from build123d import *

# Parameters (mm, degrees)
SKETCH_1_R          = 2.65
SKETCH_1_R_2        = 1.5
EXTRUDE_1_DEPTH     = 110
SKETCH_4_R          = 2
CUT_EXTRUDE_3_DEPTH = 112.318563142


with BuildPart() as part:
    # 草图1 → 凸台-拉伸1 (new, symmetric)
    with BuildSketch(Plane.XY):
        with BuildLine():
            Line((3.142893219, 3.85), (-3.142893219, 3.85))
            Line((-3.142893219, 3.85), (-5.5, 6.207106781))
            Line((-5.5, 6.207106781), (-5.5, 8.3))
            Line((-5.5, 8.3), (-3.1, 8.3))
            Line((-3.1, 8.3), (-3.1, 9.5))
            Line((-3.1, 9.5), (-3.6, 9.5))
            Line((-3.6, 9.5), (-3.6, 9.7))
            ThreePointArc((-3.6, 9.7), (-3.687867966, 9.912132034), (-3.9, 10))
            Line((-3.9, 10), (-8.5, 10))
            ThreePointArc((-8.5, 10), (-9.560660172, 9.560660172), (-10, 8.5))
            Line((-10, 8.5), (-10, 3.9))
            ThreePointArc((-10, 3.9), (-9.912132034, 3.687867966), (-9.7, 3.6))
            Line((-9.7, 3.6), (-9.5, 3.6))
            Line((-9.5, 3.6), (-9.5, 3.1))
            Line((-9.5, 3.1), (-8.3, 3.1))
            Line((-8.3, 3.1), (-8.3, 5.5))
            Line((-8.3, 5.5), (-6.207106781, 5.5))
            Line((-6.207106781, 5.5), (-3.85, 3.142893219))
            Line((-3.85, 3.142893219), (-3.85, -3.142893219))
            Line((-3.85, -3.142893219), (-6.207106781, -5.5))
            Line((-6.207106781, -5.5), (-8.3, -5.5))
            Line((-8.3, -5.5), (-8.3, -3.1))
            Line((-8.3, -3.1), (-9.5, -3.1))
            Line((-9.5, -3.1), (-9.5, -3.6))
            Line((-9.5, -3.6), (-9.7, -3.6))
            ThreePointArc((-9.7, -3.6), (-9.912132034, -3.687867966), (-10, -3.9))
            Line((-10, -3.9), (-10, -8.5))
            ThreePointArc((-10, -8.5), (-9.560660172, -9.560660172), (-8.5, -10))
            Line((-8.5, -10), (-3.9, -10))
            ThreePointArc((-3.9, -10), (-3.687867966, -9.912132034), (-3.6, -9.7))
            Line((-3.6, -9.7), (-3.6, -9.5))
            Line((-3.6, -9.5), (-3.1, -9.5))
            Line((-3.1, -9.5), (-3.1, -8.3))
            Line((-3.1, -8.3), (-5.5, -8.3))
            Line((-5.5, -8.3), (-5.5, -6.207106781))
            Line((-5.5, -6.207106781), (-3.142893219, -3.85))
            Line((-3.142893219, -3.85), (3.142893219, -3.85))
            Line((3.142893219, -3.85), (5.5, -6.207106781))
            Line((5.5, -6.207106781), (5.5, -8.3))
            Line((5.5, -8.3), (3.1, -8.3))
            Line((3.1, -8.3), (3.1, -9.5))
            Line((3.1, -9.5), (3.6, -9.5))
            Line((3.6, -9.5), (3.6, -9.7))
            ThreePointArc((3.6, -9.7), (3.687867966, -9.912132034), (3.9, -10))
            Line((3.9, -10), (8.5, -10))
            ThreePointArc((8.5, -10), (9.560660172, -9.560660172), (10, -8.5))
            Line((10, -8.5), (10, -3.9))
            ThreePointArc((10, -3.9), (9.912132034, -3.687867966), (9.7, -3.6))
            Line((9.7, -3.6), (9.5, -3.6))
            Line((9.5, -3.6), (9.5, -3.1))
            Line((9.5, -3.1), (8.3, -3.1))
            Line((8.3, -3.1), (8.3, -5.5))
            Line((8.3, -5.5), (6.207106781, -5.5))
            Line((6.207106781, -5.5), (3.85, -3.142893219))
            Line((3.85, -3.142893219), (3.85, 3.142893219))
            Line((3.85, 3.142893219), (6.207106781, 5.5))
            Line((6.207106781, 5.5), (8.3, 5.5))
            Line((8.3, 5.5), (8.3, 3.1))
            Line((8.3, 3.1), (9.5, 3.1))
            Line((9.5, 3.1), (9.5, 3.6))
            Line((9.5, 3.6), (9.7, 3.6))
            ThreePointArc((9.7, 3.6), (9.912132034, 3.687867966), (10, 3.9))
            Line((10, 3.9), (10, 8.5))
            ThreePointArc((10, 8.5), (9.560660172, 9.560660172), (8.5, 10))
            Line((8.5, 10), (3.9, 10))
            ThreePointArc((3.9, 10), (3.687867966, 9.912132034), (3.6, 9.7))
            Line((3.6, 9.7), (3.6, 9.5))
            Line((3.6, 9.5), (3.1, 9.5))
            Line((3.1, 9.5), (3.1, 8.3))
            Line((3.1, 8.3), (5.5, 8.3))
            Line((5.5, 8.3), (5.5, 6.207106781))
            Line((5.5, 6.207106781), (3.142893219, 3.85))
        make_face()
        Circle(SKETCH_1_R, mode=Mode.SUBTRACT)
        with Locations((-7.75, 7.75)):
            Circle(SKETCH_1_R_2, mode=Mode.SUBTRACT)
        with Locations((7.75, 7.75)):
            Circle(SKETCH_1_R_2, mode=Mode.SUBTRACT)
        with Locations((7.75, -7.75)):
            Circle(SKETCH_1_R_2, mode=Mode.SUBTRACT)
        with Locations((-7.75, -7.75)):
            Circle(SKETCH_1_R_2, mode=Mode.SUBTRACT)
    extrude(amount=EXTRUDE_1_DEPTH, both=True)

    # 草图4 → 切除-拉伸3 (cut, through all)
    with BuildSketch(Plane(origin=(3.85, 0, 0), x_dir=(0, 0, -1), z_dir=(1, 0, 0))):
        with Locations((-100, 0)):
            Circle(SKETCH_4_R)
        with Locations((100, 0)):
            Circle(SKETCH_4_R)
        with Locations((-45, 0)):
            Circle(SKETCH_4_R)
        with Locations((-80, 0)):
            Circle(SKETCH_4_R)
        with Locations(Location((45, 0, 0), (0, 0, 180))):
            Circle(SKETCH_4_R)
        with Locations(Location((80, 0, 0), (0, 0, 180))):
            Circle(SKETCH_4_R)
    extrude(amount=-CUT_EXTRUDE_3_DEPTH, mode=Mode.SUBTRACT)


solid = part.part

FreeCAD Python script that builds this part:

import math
import FreeCAD as App
import Part
import Sketcher

V = App.Vector
Q = App.Units.Quantity

doc = App.newDocument("Part")
body = doc.addObject("PartDesign::Body", "Body")

# Sketch on XY plane
sketch1 = body.newObject("Sketcher::SketchObject", "Sketch")
sketch1.AttachmentSupport = (doc.getObject("XY_Plane"), [""])
sketch1.MapMode = "FlatFace"
sketch1.addGeometry(Part.LineSegment(V(3.14, 3.85, 0), V(-3.14, 3.85, 0)), False)
sketch1.addGeometry(Part.LineSegment(V(-3.14, 3.85, 0), V(-5.5, 6.21, 0)), False)
sketch1.addGeometry(Part.LineSegment(V(-5.5, 6.21, 0), V(-5.5, 8.3, 0)), False)
sketch1.addGeometry(Part.LineSegment(V(-5.5, 8.3, 0), V(-3.1, 8.3, 0)), False)
sketch1.addGeometry(Part.LineSegment(V(-3.1, 8.3, 0), V(-3.1, 9.5, 0)), False)
sketch1.addGeometry(Part.LineSegment(V(-3.1, 9.5, 0), V(-3.6, 9.5, 0)), False)
sketch1.addGeometry(Part.LineSegment(V(-3.6, 9.5, 0), V(-3.6, 9.7, 0)), False)
sketch1.addGeometry(Part.ArcOfCircle(Part.Circle(V(-3.9, 9.7, 0), V(0, 0, 1), 0.3), math.radians(0), math.radians(90)), False)
sketch1.addGeometry(Part.LineSegment(V(-3.9, 10, 0), V(-8.5, 10, 0)), False)
sketch1.addGeometry(Part.ArcOfCircle(Part.Circle(V(-8.5, 8.5, 0), V(0, 0, 1), 1.5), math.radians(90), math.radians(180)), False)
sketch1.addGeometry(Part.LineSegment(V(-10, 8.5, 0), V(-10, 3.9, 0)), False)
sketch1.addGeometry(Part.ArcOfCircle(Part.Circle(V(-9.7, 3.9, 0), V(0, 0, 1), 0.3), math.radians(-180), math.radians(-90)), False)
sketch1.addGeometry(Part.LineSegment(V(-9.7, 3.6, 0), V(-9.5, 3.6, 0)), False)
sketch1.addGeometry(Part.LineSegment(V(-9.5, 3.6, 0), V(-9.5, 3.1, 0)), False)
sketch1.addGeometry(Part.LineSegment(V(-9.5, 3.1, 0), V(-8.3, 3.1, 0)), False)
sketch1.addGeometry(Part.LineSegment(V(-8.3, 3.1, 0), V(-8.3, 5.5, 0)), False)
sketch1.addGeometry(Part.LineSegment(V(-8.3, 5.5, 0), V(-6.21, 5.5, 0)), False)
sketch1.addGeometry(Part.LineSegment(V(-6.21, 5.5, 0), V(-3.85, 3.14, 0)), False)
sketch1.addGeometry(Part.LineSegment(V(-3.85, 3.14, 0), V(-3.85, -3.14, 0)), False)
sketch1.addGeometry(Part.LineSegment(V(-3.85, -3.14, 0), V(-6.21, -5.5, 0)), False)
sketch1.addGeometry(Part.LineSegment(V(-6.21, -5.5, 0), V(-8.3, -5.5, 0)), False)
sketch1.addGeometry(Part.LineSegment(V(-8.3, -5.5, 0), V(-8.3, -3.1, 0)), False)
sketch1.addGeometry(Part.LineSegment(V(-8.3, -3.1, 0), V(-9.5, -3.1, 0)), False)
sketch1.addGeometry(Part.LineSegment(V(-9.5, -3.1, 0), V(-9.5, -3.6, 0)), False)
sketch1.addGeometry(Part.LineSegment(V(-9.5, -3.6, 0), V(-9.7, -3.6, 0)), False)
sketch1.addGeometry(Part.ArcOfCircle(Part.Circle(V(-9.7, -3.9, 0), V(0, 0, 1), 0.3), math.radians(90), math.radians(180)), False)
sketch1.addGeometry(Part.LineSegment(V(-10, -3.9, 0), V(-10, -8.5, 0)), False)
sketch1.addGeometry(Part.ArcOfCircle(Part.Circle(V(-8.5, -8.5, 0), V(0, 0, 1), 1.5), math.radians(180), math.radians(270)), False)
sketch1.addGeometry(Part.LineSegment(V(-8.5, -10, 0), V(-3.9, -10, 0)), False)
sketch1.addGeometry(Part.ArcOfCircle(Part.Circle(V(-3.9, -9.7, 0), V(0, 0, 1), 0.3), math.radians(-90), math.radians(0)), False)
sketch1.addGeometry(Part.LineSegment(V(-3.6, -9.7, 0), V(-3.6, -9.5, 0)), False)
sketch1.addGeometry(Part.LineSegment(V(-3.6, -9.5, 0), V(-3.1, -9.5, 0)), False)
sketch1.addGeometry(Part.LineSegment(V(-3.1, -9.5, 0), V(-3.1, -8.3, 0)), False)
sketch1.addGeometry(Part.LineSegment(V(-3.1, -8.3, 0), V(-5.5, -8.3, 0)), False)
sketch1.addGeometry(Part.LineSegment(V(-5.5, -8.3, 0), V(-5.5, -6.21, 0)), False)
sketch1.addGeometry(Part.LineSegment(V(-5.5, -6.21, 0), V(-3.14, -3.85, 0)), False)
sketch1.addGeometry(Part.LineSegment(V(-3.14, -3.85, 0), V(3.14, -3.85, 0)), False)
sketch1.addGeometry(Part.LineSegment(V(3.14, -3.85, 0), V(5.5, -6.21, 0)), False)
sketch1.addGeometry(Part.LineSegment(V(5.5, -6.21, 0), V(5.5, -8.3, 0)), False)
sketch1.addGeometry(Part.LineSegment(V(5.5, -8.3, 0), V(3.1, -8.3, 0)), False)
sketch1.addGeometry(Part.LineSegment(V(3.1, -8.3, 0), V(3.1, -9.5, 0)), False)
sketch1.addGeometry(Part.LineSegment(V(3.1, -9.5, 0), V(3.6, -9.5, 0)), False)
sketch1.addGeometry(Part.LineSegment(V(3.6, -9.5, 0), V(3.6, -9.7, 0)), False)
sketch1.addGeometry(Part.ArcOfCircle(Part.Circle(V(3.9, -9.7, 0), V(0, 0, 1), 0.3), math.radians(-180), math.radians(-90)), False)
sketch1.addGeometry(Part.LineSegment(V(3.9, -10, 0), V(8.5, -10, 0)), False)
sketch1.addGeometry(Part.ArcOfCircle(Part.Circle(V(8.5, -8.5, 0), V(0, 0, 1), 1.5), math.radians(-90), math.radians(0)), False)
sketch1.addGeometry(Part.LineSegment(V(10, -8.5, 0), V(10, -3.9, 0)), False)
sketch1.addGeometry(Part.ArcOfCircle(Part.Circle(V(9.7, -3.9, 0), V(0, 0, 1), 0.3), math.radians(0), math.radians(90)), False)
sketch1.addGeometry(Part.LineSegment(V(9.7, -3.6, 0), V(9.5, -3.6, 0)), False)
sketch1.addGeometry(Part.LineSegment(V(9.5, -3.6, 0), V(9.5, -3.1, 0)), False)
sketch1.addGeometry(Part.LineSegment(V(9.5, -3.1, 0), V(8.3, -3.1, 0)), False)
sketch1.addGeometry(Part.LineSegment(V(8.3, -3.1, 0), V(8.3, -5.5, 0)), False)
sketch1.addGeometry(Part.LineSegment(V(8.3, -5.5, 0), V(6.21, -5.5, 0)), False)
sketch1.addGeometry(Part.LineSegment(V(6.21, -5.5, 0), V(3.85, -3.14, 0)), False)
sketch1.addGeometry(Part.LineSegment(V(3.85, -3.14, 0), V(3.85, 3.14, 0)), False)
sketch1.addGeometry(Part.LineSegment(V(3.85, 3.14, 0), V(6.21, 5.5, 0)), False)
sketch1.addGeometry(Part.LineSegment(V(6.21, 5.5, 0), V(8.3, 5.5, 0)), False)
sketch1.addGeometry(Part.LineSegment(V(8.3, 5.5, 0), V(8.3, 3.1, 0)), False)
sketch1.addGeometry(Part.LineSegment(V(8.3, 3.1, 0), V(9.5, 3.1, 0)), False)
sketch1.addGeometry(Part.LineSegment(V(9.5, 3.1, 0), V(9.5, 3.6, 0)), False)
sketch1.addGeometry(Part.LineSegment(V(9.5, 3.6, 0), V(9.7, 3.6, 0)), False)
sketch1.addGeometry(Part.ArcOfCircle(Part.Circle(V(9.7, 3.9, 0), V(0, 0, 1), 0.3), math.radians(-90), math.radians(0)), False)
sketch1.addGeometry(Part.LineSegment(V(10, 3.9, 0), V(10, 8.5, 0)), False)
sketch1.addGeometry(Part.ArcOfCircle(Part.Circle(V(8.5, 8.5, 0), V(0, 0, 1), 1.5), math.radians(0), math.radians(90)), False)
sketch1.addGeometry(Part.LineSegment(V(8.5, 10, 0), V(3.9, 10, 0)), False)
sketch1.addGeometry(Part.ArcOfCircle(Part.Circle(V(3.9, 9.7, 0), V(0, 0, 1), 0.3), math.radians(90), math.radians(180)), False)
sketch1.addGeometry(Part.LineSegment(V(3.6, 9.7, 0), V(3.6, 9.5, 0)), False)
sketch1.addGeometry(Part.LineSegment(V(3.6, 9.5, 0), V(3.1, 9.5, 0)), False)
sketch1.addGeometry(Part.LineSegment(V(3.1, 9.5, 0), V(3.1, 8.3, 0)), False)
sketch1.addGeometry(Part.LineSegment(V(3.1, 8.3, 0), V(5.5, 8.3, 0)), False)
sketch1.addGeometry(Part.LineSegment(V(5.5, 8.3, 0), V(5.5, 6.21, 0)), False)
sketch1.addGeometry(Part.LineSegment(V(5.5, 6.21, 0), V(3.14, 3.85, 0)), False)
sketch1.addGeometry(Part.Circle(V(-7.75, -7.75, 0), V(0, 0, 1), 1.5), False)
sketch1.addGeometry(Part.Circle(V(7.75, -7.75, 0), V(0, 0, 1), 1.5), False)
sketch1.addGeometry(Part.Circle(V(-7.75, 7.75, 0), V(0, 0, 1), 1.5), False)
sketch1.addGeometry(Part.Circle(V(0, 0, 0), V(0, 0, 1), 2.65), False)
sketch1.addGeometry(Part.Circle(V(7.75, 7.75, 0), V(0, 0, 1), 1.5), False)
sketch1.addConstraint(Sketcher.Constraint("Coincident", 0, 2, 1, 1))
sketch1.addConstraint(Sketcher.Constraint("Coincident", 1, 2, 2, 1))
sketch1.addConstraint(Sketcher.Constraint("Coincident", 2, 2, 3, 1))
sketch1.addConstraint(Sketcher.Constraint("Coincident", 3, 2, 4, 1))
sketch1.addConstraint(Sketcher.Constraint("Coincident", 4, 2, 5, 1))
sketch1.addConstraint(Sketcher.Constraint("Coincident", 5, 2, 6, 1))
sketch1.addConstraint(Sketcher.Constraint("Tangent", 6, 2, 7, 1))
sketch1.addConstraint(Sketcher.Constraint("Tangent", 7, 2, 8, 1))
sketch1.addConstraint(Sketcher.Constraint("Tangent", 8, 2, 9, 1))
sketch1.addConstraint(Sketcher.Constraint("Tangent", 9, 2, 10, 1))
sketch1.addConstraint(Sketcher.Constraint("Tangent", 10, 2, 11, 1))
sketch1.addConstraint(Sketcher.Constraint("Tangent", 11, 2, 12, 1))
sketch1.addConstraint(Sketcher.Constraint("Coincident", 12, 2, 13, 1))
sketch1.addConstraint(Sketcher.Constraint("Coincident", 13, 2, 14, 1))
sketch1.addConstraint(Sketcher.Constraint("Coincident", 14, 2, 15, 1))
sketch1.addConstraint(Sketcher.Constraint("Coincident", 15, 2, 16, 1))
sketch1.addConstraint(Sketcher.Constraint("Coincident", 16, 2, 17, 1))
sketch1.addConstraint(Sketcher.Constraint("Coincident", 17, 2, 18, 1))
sketch1.addConstraint(Sketcher.Constraint("Coincident", 18, 2, 19, 1))
sketch1.addConstraint(Sketcher.Constraint("Coincident", 19, 2, 20, 1))
sketch1.addConstraint(Sketcher.Constraint("Coincident", 20, 2, 21, 1))
sketch1.addConstraint(Sketcher.Constraint("Coincident", 21, 2, 22, 1))
sketch1.addConstraint(Sketcher.Constraint("Coincident", 22, 2, 23, 1))
sketch1.addConstraint(Sketcher.Constraint("Coincident", 23, 2, 24, 1))
sketch1.addConstraint(Sketcher.Constraint("Tangent", 24, 2, 25, 1))
sketch1.addConstraint(Sketcher.Constraint("Tangent", 25, 2, 26, 1))
sketch1.addConstraint(Sketcher.Constraint("Tangent", 26, 2, 27, 1))
sketch1.addConstraint(Sketcher.Constraint("Tangent", 27, 2, 28, 1))
sketch1.addConstraint(Sketcher.Constraint("Tangent", 28, 2, 29, 1))
sketch1.addConstraint(Sketcher.Constraint("Tangent", 29, 2, 30, 1))
sketch1.addConstraint(Sketcher.Constraint("Coincident", 30, 2, 31, 1))
sketch1.addConstraint(Sketcher.Constraint("Coincident", 31, 2, 32, 1))
sketch1.addConstraint(Sketcher.Constraint("Coincident", 32, 2, 33, 1))
sketch1.addConstraint(Sketcher.Constraint("Coincident", 33, 2, 34, 1))
sketch1.addConstraint(Sketcher.Constraint("Coincident", 34, 2, 35, 1))
sketch1.addConstraint(Sketcher.Constraint("Coincident", 35, 2, 36, 1))
sketch1.addConstraint(Sketcher.Constraint("Coincident", 36, 2, 37, 1))
sketch1.addConstraint(Sketcher.Constraint("Coincident", 37, 2, 38, 1))
sketch1.addConstraint(Sketcher.Constraint("Coincident", 38, 2, 39, 1))
sketch1.addConstraint(Sketcher.Constraint("Coincident", 39, 2, 40, 1))
sketch1.addConstraint(Sketcher.Constraint("Coincident", 40, 2, 41, 1))
sketch1.addConstraint(Sketcher.Constraint("Coincident", 41, 2, 42, 1))
sketch1.addConstraint(Sketcher.Constraint("Tangent", 42, 2, 43, 1))
sketch1.addConstraint(Sketcher.Constraint("Tangent", 43, 2, 44, 1))
sketch1.addConstraint(Sketcher.Constraint("Tangent", 44, 2, 45, 1))
sketch1.addConstraint(Sketcher.Constraint("Tangent", 45, 2, 46, 1))
sketch1.addConstraint(Sketcher.Constraint("Tangent", 46, 2, 47, 1))
sketch1.addConstraint(Sketcher.Constraint("Tangent", 47, 2, 48, 1))
sketch1.addConstraint(Sketcher.Constraint("Coincident", 48, 2, 49, 1))
sketch1.addConstraint(Sketcher.Constraint("Coincident", 49, 2, 50, 1))
sketch1.addConstraint(Sketcher.Constraint("Coincident", 50, 2, 51, 1))
sketch1.addConstraint(Sketcher.Constraint("Coincident", 51, 2, 52, 1))
sketch1.addConstraint(Sketcher.Constraint("Coincident", 52, 2, 53, 1))
sketch1.addConstraint(Sketcher.Constraint("Coincident", 53, 2, 54, 1))
sketch1.addConstraint(Sketcher.Constraint("Coincident", 54, 2, 55, 1))
sketch1.addConstraint(Sketcher.Constraint("Coincident", 55, 2, 56, 1))
sketch1.addConstraint(Sketcher.Constraint("Coincident", 56, 2, 57, 1))
sketch1.addConstraint(Sketcher.Constraint("Coincident", 57, 2, 58, 1))
sketch1.addConstraint(Sketcher.Constraint("Coincident", 58, 2, 59, 1))
sketch1.addConstraint(Sketcher.Constraint("Coincident", 59, 2, 60, 1))
sketch1.addConstraint(Sketcher.Constraint("Tangent", 60, 2, 61, 1))
sketch1.addConstraint(Sketcher.Constraint("Tangent", 61, 2, 62, 1))
sketch1.addConstraint(Sketcher.Constraint("Tangent", 62, 2, 63, 1))
sketch1.addConstraint(Sketcher.Constraint("Tangent", 63, 2, 64, 1))
sketch1.addConstraint(Sketcher.Constraint("Tangent", 64, 2, 65, 1))
sketch1.addConstraint(Sketcher.Constraint("Tangent", 65, 2, 66, 1))
sketch1.addConstraint(Sketcher.Constraint("Coincident", 66, 2, 67, 1))
sketch1.addConstraint(Sketcher.Constraint("Coincident", 67, 2, 68, 1))
sketch1.addConstraint(Sketcher.Constraint("Coincident", 68, 2, 69, 1))
sketch1.addConstraint(Sketcher.Constraint("Coincident", 69, 2, 70, 1))
sketch1.addConstraint(Sketcher.Constraint("Coincident", 70, 2, 71, 1))
sketch1.addConstraint(Sketcher.Constraint("Coincident", 71, 2, 0, 1))
sketch1.addConstraint(Sketcher.Constraint("Horizontal", 0))
sketch1.addConstraint(Sketcher.Constraint("Vertical", 2))
sketch1.addConstraint(Sketcher.Constraint("Horizontal", 3))
sketch1.addConstraint(Sketcher.Constraint("Vertical", 4))
sketch1.addConstraint(Sketcher.Constraint("Horizontal", 5))
sketch1.addConstraint(Sketcher.Constraint("Vertical", 6))
sketch1.addConstraint(Sketcher.Constraint("Horizontal", 8))
sketch1.addConstraint(Sketcher.Constraint("Vertical", 10))
sketch1.addConstraint(Sketcher.Constraint("Horizontal", 12))
sketch1.addConstraint(Sketcher.Constraint("Vertical", 13))
sketch1.addConstraint(Sketcher.Constraint("Horizontal", 14))
sketch1.addConstraint(Sketcher.Constraint("Vertical", 15))
sketch1.addConstraint(Sketcher.Constraint("Horizontal", 16))
sketch1.addConstraint(Sketcher.Constraint("Vertical", 18))
sketch1.addConstraint(Sketcher.Constraint("Horizontal", 20))
sketch1.addConstraint(Sketcher.Constraint("Vertical", 21))
sketch1.addConstraint(Sketcher.Constraint("Horizontal", 22))
sketch1.addConstraint(Sketcher.Constraint("Vertical", 23))
sketch1.addConstraint(Sketcher.Constraint("Horizontal", 24))
sketch1.addConstraint(Sketcher.Constraint("Vertical", 26))
sketch1.addConstraint(Sketcher.Constraint("Horizontal", 28))
sketch1.addConstraint(Sketcher.Constraint("Vertical", 30))
sketch1.addConstraint(Sketcher.Constraint("Horizontal", 31))
sketch1.addConstraint(Sketcher.Constraint("Vertical", 32))
sketch1.addConstraint(Sketcher.Constraint("Horizontal", 33))
sketch1.addConstraint(Sketcher.Constraint("Vertical", 34))
sketch1.addConstraint(Sketcher.Constraint("Horizontal", 36))
sketch1.addConstraint(Sketcher.Constraint("Vertical", 38))
sketch1.addConstraint(Sketcher.Constraint("Horizontal", 39))
sketch1.addConstraint(Sketcher.Constraint("Vertical", 40))
sketch1.addConstraint(Sketcher.Constraint("Horizontal", 41))
sketch1.addConstraint(Sketcher.Constraint("Vertical", 42))
sketch1.addConstraint(Sketcher.Constraint("Horizontal", 44))
sketch1.addConstraint(Sketcher.Constraint("Vertical", 46))
sketch1.addConstraint(Sketcher.Constraint("Horizontal", 48))
sketch1.addConstraint(Sketcher.Constraint("Vertical", 49))
sketch1.addConstraint(Sketcher.Constraint("Horizontal", 50))
sketch1.addConstraint(Sketcher.Constraint("Vertical", 51))
sketch1.addConstraint(Sketcher.Constraint("Horizontal", 52))
sketch1.addConstraint(Sketcher.Constraint("Vertical", 54))
sketch1.addConstraint(Sketcher.Constraint("Horizontal", 56))
sketch1.addConstraint(Sketcher.Constraint("Vertical", 57))
sketch1.addConstraint(Sketcher.Constraint("Horizontal", 58))
sketch1.addConstraint(Sketcher.Constraint("Vertical", 59))
sketch1.addConstraint(Sketcher.Constraint("Horizontal", 60))
sketch1.addConstraint(Sketcher.Constraint("Vertical", 62))
sketch1.addConstraint(Sketcher.Constraint("Horizontal", 64))
sketch1.addConstraint(Sketcher.Constraint("Vertical", 66))
sketch1.addConstraint(Sketcher.Constraint("Horizontal", 67))
sketch1.addConstraint(Sketcher.Constraint("Vertical", 68))
sketch1.addConstraint(Sketcher.Constraint("Horizontal", 69))
sketch1.addConstraint(Sketcher.Constraint("Vertical", 70))
sketch1.addConstraint(Sketcher.Constraint("Coincident", 75, 3, -1, 1))
sketch1.addConstraint(Sketcher.Constraint("Equal", 7, 11))
sketch1.addConstraint(Sketcher.Constraint("Equal", 11, 25))
sketch1.addConstraint(Sketcher.Constraint("Equal", 9, 27))
sketch1.addConstraint(Sketcher.Constraint("Equal", 25, 29))
sketch1.addConstraint(Sketcher.Constraint("Equal", 29, 43))
sketch1.addConstraint(Sketcher.Constraint("Equal", 27, 45))
sketch1.addConstraint(Sketcher.Constraint("Equal", 43, 47))
sketch1.addConstraint(Sketcher.Constraint("Equal", 47, 61))
sketch1.addConstraint(Sketcher.Constraint("Equal", 45, 63))
sketch1.addConstraint(Sketcher.Constraint("Equal", 61, 65))
sketch1.addConstraint(Sketcher.Constraint("Equal", 63, 72))
sketch1.addConstraint(Sketcher.Constraint("Equal", 72, 73))
sketch1.addConstraint(Sketcher.Constraint("Equal", 73, 74))
sketch1.addConstraint(Sketcher.Constraint("Equal", 74, 76))
sketch1.addConstraint(Sketcher.Constraint("Symmetric", 7, 3, 43, 3, -1, 1))
sketch1.addConstraint(Sketcher.Constraint("Symmetric", 11, 3, 47, 3, -1, 1))
sketch1.addConstraint(Sketcher.Constraint("Symmetric", 25, 3, 61, 3, -1, 1))
sketch1.addConstraint(Sketcher.Constraint("Symmetric", 29, 3, 65, 3, -1, 1))
sketch1.addConstraint(Sketcher.Constraint("Symmetric", 73, 3, 74, 3, -1, 1))
sketch1.addConstraint(Sketcher.Constraint("Symmetric", 72, 3, 76, 3, -1, 1))
sketch1.addConstraint(Sketcher.Constraint("Symmetric", 0, 2, 36, 2, -1, 1))
sketch1.addConstraint(Sketcher.Constraint("Symmetric", 1, 2, 37, 2, -1, 1))
sketch1.addConstraint(Sketcher.Constraint("Symmetric", 3, 2, 39, 2, -1, 1))
sketch1.addConstraint(Sketcher.Constraint("Symmetric", 13, 2, 49, 2, -1, 1))
sketch1.addConstraint(Sketcher.Constraint("Symmetric", 15, 2, 51, 2, -1, 1))
sketch1.addConstraint(Sketcher.Constraint("Symmetric", 17, 2, 53, 2, -1, 1))
sketch1.addConstraint(Sketcher.Constraint("Symmetric", 19, 2, 55, 2, -1, 1))
sketch1.addConstraint(Sketcher.Constraint("Symmetric", 21, 2, 57, 2, -1, 1))
sketch1.addConstraint(Sketcher.Constraint("Symmetric", 31, 2, 67, 2, -1, 1))
sketch1.addConstraint(Sketcher.Constraint("Symmetric", 33, 2, 69, 2, -1, 1))
sketch1.addConstraint(Sketcher.Constraint("Symmetric", 29, 3, 43, 3, -2))
sketch1.addConstraint(Sketcher.Constraint("Symmetric", 25, 3, 47, 3, -2))
sketch1.addConstraint(Sketcher.Constraint("Symmetric", 72, 3, 73, 3, -2))
sketch1.addConstraint(Sketcher.Constraint("Symmetric", 34, 2, 37, 2, -2))
sketch1.addConstraint(Sketcher.Constraint("Symmetric", 32, 2, 39, 2, -2))
sketch1.addConstraint(Sketcher.Constraint("Symmetric", 22, 2, 49, 2, -2))
sketch1.addConstraint(Sketcher.Constraint("Symmetric", 20, 2, 51, 2, -2))
sketch1.addConstraint(Sketcher.Constraint("Parallel", 1, 17))
sketch1.addConstraint(Sketcher.Constraint("Perpendicular", 17, 19))
sketch1.addConstraint(Sketcher.Constraint("Parallel", 19, 35))
sketch1.addConstraint(Sketcher.Constraint("Parallel", 37, 53))
sketch1.addConstraint(Sketcher.Constraint("Perpendicular", 53, 55))
sketch1.addConstraint(Sketcher.Constraint("Parallel", 55, 71))
sketch1.addConstraint(Sketcher.Constraint("Horizontal", 31, 2, 40, 2))
sketch1.addConstraint(Sketcher.Constraint("Horizontal", 18, 2, 53, 2))
sketch1.addConstraint(Sketcher.Constraint("Horizontal", 5, 2, 66, 2))
sketch1.addConstraint(Sketcher.Constraint("Horizontal", 1, 2, 70, 2))
sketch1.addConstraint(Sketcher.Constraint("Vertical", 16, 2, 19, 2))
sketch1.addConstraint(Sketcher.Constraint("Vertical", 49, 2, 58, 2))
sketch1.addConstraint(Sketcher.Constraint("Equal", 56, 2))
sketch1.addConstraint(Sketcher.Constraint("Equal", 58, 4))
sketch1.addConstraint(Sketcher.Constraint("Equal", 60, 6))
sketch1.addConstraint(Sketcher.Constraint("Equal", 64, 10))
sketch1.addConstraint(Sketcher.Constraint("Equal", 67, 13))
sketch1.addConstraint(Sketcher.Constraint("Equal", 69, 15))
sketch1.addConstraint(Sketcher.Constraint("Equal", 36, 18))
sketch1.addConstraint(Sketcher.Constraint("Equal", 1, 17))
sketch1.addConstraint(Sketcher.Constraint("Diameter", 72, Q("3 mm")))
sketch1.addConstraint(Sketcher.Constraint("Diameter", 75, Q("5.3 mm")))
sketch1.addConstraint(Sketcher.Constraint("Radius", 7, Q("0.3 mm")))
sketch1.addConstraint(Sketcher.Constraint("DistanceX", 3, 1, 3, 2, Q("2.4 mm")))
sketch1.addConstraint(Sketcher.Constraint("DistanceX", 5, 2, 5, 1, Q("0.5 mm")))
sketch1.addConstraint(Sketcher.Constraint("DistanceX", 8, 2, 8, 1, Q("4.6 mm")))
sketch1.addConstraint(Sketcher.Constraint("DistanceX", 12, 1, 12, 2, Q("0.2 mm")))
sketch1.addConstraint(Sketcher.Constraint("DistanceX", 14, 1, 14, 2, Q("1.2 mm")))
sketch1.addConstraint(Sketcher.Constraint("DistanceY", -1, 1, 7, 2, Q("10 mm")))
sketch1.addConstraint(Sketcher.Constraint("DistanceX", 72, 3, -1, 1, Q("7.75 mm")))
sketch1.addConstraint(Sketcher.Constraint("DistanceY", 72, 3, -1, 1, Q("7.75 mm")))
sketch1.addConstraint(Sketcher.Constraint("DistanceY", -1, 1, 0, 2, Q("3.85 mm")))
sketch1.addConstraint(Sketcher.Constraint("DistanceX", 0, 2, 0, 1, Q("6.285786 mm")))
pad1 = body.newObject("PartDesign::Pad", "Pad")
pad1.Profile = sketch1
pad1.Length = 220
pad1.Midplane = True

# Sketch on YZ plane
sketch2 = body.newObject("Sketcher::SketchObject", "Sketch001")
sketch2.AttachmentSupport = (doc.getObject("YZ_Plane"), [""])
sketch2.MapMode = "FlatFace"
sketch2.AttachmentOffset = App.Placement(V(0, 0, 3.85), App.Rotation())
sketch2.addGeometry(Part.Circle(V(0, 100, 0), V(0, 0, 1), 2), False)
sketch2.addGeometry(Part.Circle(V(0, -100, 0), V(0, 0, 1), 2), False)
sketch2.addGeometry(Part.Circle(V(0, 45, 0), V(0, 0, 1), 2), False)
sketch2.addGeometry(Part.Circle(V(0, 80, 0), V(0, 0, 1), 2), False)
sketch2.addGeometry(Part.Circle(V(0, -45, 0), V(0, 0, 1), 2), False)
sketch2.addGeometry(Part.Circle(V(0, -80, 0), V(0, 0, 1), 2), False)
sketch2.addConstraint(Sketcher.Constraint("Equal", 0, 1))
sketch2.addConstraint(Sketcher.Constraint("Equal", 1, 2))
sketch2.addConstraint(Sketcher.Constraint("Equal", 2, 3))
sketch2.addConstraint(Sketcher.Constraint("Equal", 3, 4))
sketch2.addConstraint(Sketcher.Constraint("Equal", 4, 5))
sketch2.addConstraint(Sketcher.Constraint("Symmetric", 0, 3, 1, 3, -1, 1))
sketch2.addConstraint(Sketcher.Constraint("Symmetric", 2, 3, 4, 3, -1, 1))
sketch2.addConstraint(Sketcher.Constraint("Symmetric", 3, 3, 5, 3, -1, 1))
sketch2.addConstraint(Sketcher.Constraint("PointOnObject", 0, 3, -2))
sketch2.addConstraint(Sketcher.Constraint("PointOnObject", 2, 3, -2))
sketch2.addConstraint(Sketcher.Constraint("PointOnObject", 3, 3, -2))
sketch2.addConstraint(Sketcher.Constraint("Diameter", 0, Q("4 mm")))
sketch2.addConstraint(Sketcher.Constraint("DistanceY", -1, 1, 0, 3, Q("100 mm")))
sketch2.addConstraint(Sketcher.Constraint("DistanceY", -1, 1, 2, 3, Q("45 mm")))
sketch2.addConstraint(Sketcher.Constraint("DistanceY", -1, 1, 3, 3, Q("80 mm")))
pocket1 = body.newObject("PartDesign::Pocket", "Pocket")
pocket1.Profile = sketch2
pocket1.Type = "ThroughAll"

doc.recompute()
